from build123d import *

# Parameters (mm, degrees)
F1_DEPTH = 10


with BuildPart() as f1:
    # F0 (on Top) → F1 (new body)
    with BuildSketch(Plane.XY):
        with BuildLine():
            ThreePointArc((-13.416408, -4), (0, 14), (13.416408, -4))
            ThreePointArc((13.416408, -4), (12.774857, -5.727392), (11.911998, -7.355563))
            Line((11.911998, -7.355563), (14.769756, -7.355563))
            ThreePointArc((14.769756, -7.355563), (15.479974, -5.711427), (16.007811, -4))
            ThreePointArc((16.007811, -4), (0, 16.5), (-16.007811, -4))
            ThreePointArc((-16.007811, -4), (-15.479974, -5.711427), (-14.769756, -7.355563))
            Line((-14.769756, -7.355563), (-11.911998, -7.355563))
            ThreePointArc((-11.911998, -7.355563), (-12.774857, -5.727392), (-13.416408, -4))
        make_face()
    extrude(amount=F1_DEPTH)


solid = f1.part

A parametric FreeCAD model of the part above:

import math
import FreeCAD as App
import Part
import Sketcher

doc = App.newDocument("Part")
body = doc.addObject("PartDesign::Body", "Body")

sketch1 = body.newObject("Sketcher::SketchObject", "Sketch")
sketch1.AttachmentSupport = (doc.getObject("XY_Plane"), [""])
sketch1.MapMode = "FlatFace"
sketch1.addGeometry(Part.ArcOfCircle(Part.Circle(App.Vector(0, 0, 0), App.Vector(0, 0, 1), 14), math.radians(-16.601549), math.radians(196.601549)), False)
sketch1.addGeometry(Part.ArcOfCircle(Part.Circle(App.Vector(-0.000049, 0.000022, 0), App.Vector(0, 0, 1), 14.000053), math.radians(-31.694968), math.radians(-16.601578)), False)
sketch1.addGeometry(Part.LineSegment(App.Vector(11.911998, -7.355563, 0), App.Vector(14.769756, -7.355563, 0)), False)
sketch1.addGeometry(Part.ArcOfCircle(Part.Circle(App.Vector(-0.000061, 0.000025, 0), App.Vector(0, 0, 1), 16.500065), math.radians(-26.473984), math.radians(-14.029696)), False)
sketch1.addGeometry(Part.ArcOfCircle(Part.Circle(App.Vector(0, 0, 0), App.Vector(0, 0, 1), 16.5), math.radians(-14.029664), math.radians(194.029664)), False)
sketch1.addGeometry(Part.ArcOfCircle(Part.Circle(App.Vector(0.000061, 0.000025, 0), App.Vector(0, 0, 1), 16.500065), math.radians(-165.970304), math.radians(-153.526016)), False)
sketch1.addGeometry(Part.LineSegment(App.Vector(-14.769756, -7.355563, 0), App.Vector(-11.911998, -7.355563, 0)), False)
sketch1.addGeometry(Part.ArcOfCircle(Part.Circle(App.Vector(0.000049, 0.000022, 0), App.Vector(0, 0, 1), 14.000053), math.radians(-163.398422), math.radians(-148.305032)), False)
sketch1.addConstraint(Sketcher.Constraint("Tangent", 0, 1, 1, 2))
sketch1.addConstraint(Sketcher.Constraint("Coincident", 1, 1, 2, 1))
sketch1.addConstraint(Sketcher.Constraint("Coincident", 2, 2, 3, 1))
sketch1.addConstraint(Sketcher.Constraint("Tangent", 3, 2, 4, 1))
sketch1.addConstraint(Sketcher.Constraint("Tangent", 4, 2, 5, 1))
sketch1.addConstraint(Sketcher.Constraint("Coincident", 5, 2, 6, 1))
sketch1.addConstraint(Sketcher.Constraint("Coincident", 6, 2, 7, 2))
sketch1.addConstraint(Sketcher.Constraint("Tangent", 7, 1, 0, 2))
sketch1.addConstraint(Sketcher.Constraint("Horizontal", 2))
sketch1.addConstraint(Sketcher.Constraint("Horizontal", 6))
sketch1.addConstraint(Sketcher.Constraint("Coincident", 0, 3, -1, 1))
sketch1.addConstraint(Sketcher.Constraint("Coincident", 4, 3, -1, 1))
sketch1.addConstraint(Sketcher.Constraint("Equal", 3, 5))
sketch1.addConstraint(Sketcher.Constraint("Equal", 1, 7))
sketch1.addConstraint(Sketcher.Constraint("Horizontal", 0, 1, 3, 2))
sketch1.addConstraint(Sketcher.Constraint("Horizontal", 3, 2, 4, 2))
sketch1.addConstraint(Sketcher.Constraint("Horizontal", 2, 2, 5, 2))
sketch1.addConstraint(Sketcher.Constraint("Horizontal", 4, 2, 7, 1))
sketch1.addConstraint(Sketcher.Constraint("Radius", 0, 14.0))
sketch1.addConstraint(Sketcher.Constraint("Radius", 4, 16.5))
sketch1.addConstraint(Sketcher.Constraint("DistanceY", 0, 1, -1, 1, 4.0))
sketch1.addConstraint(Sketcher.Constraint("Radius", 1, 14.000053))
sketch1.addConstraint(Sketcher.Constraint("Radius", 3, 16.500065))
sketch1.addConstraint(Sketcher.Constraint("DistanceX", 2, 1, 2, 2, 2.857758))
pad1 = body.newObject("PartDesign::Pad", "Pad")
pad1.Profile = sketch1
pad1.Length = 10

doc.recompute()
